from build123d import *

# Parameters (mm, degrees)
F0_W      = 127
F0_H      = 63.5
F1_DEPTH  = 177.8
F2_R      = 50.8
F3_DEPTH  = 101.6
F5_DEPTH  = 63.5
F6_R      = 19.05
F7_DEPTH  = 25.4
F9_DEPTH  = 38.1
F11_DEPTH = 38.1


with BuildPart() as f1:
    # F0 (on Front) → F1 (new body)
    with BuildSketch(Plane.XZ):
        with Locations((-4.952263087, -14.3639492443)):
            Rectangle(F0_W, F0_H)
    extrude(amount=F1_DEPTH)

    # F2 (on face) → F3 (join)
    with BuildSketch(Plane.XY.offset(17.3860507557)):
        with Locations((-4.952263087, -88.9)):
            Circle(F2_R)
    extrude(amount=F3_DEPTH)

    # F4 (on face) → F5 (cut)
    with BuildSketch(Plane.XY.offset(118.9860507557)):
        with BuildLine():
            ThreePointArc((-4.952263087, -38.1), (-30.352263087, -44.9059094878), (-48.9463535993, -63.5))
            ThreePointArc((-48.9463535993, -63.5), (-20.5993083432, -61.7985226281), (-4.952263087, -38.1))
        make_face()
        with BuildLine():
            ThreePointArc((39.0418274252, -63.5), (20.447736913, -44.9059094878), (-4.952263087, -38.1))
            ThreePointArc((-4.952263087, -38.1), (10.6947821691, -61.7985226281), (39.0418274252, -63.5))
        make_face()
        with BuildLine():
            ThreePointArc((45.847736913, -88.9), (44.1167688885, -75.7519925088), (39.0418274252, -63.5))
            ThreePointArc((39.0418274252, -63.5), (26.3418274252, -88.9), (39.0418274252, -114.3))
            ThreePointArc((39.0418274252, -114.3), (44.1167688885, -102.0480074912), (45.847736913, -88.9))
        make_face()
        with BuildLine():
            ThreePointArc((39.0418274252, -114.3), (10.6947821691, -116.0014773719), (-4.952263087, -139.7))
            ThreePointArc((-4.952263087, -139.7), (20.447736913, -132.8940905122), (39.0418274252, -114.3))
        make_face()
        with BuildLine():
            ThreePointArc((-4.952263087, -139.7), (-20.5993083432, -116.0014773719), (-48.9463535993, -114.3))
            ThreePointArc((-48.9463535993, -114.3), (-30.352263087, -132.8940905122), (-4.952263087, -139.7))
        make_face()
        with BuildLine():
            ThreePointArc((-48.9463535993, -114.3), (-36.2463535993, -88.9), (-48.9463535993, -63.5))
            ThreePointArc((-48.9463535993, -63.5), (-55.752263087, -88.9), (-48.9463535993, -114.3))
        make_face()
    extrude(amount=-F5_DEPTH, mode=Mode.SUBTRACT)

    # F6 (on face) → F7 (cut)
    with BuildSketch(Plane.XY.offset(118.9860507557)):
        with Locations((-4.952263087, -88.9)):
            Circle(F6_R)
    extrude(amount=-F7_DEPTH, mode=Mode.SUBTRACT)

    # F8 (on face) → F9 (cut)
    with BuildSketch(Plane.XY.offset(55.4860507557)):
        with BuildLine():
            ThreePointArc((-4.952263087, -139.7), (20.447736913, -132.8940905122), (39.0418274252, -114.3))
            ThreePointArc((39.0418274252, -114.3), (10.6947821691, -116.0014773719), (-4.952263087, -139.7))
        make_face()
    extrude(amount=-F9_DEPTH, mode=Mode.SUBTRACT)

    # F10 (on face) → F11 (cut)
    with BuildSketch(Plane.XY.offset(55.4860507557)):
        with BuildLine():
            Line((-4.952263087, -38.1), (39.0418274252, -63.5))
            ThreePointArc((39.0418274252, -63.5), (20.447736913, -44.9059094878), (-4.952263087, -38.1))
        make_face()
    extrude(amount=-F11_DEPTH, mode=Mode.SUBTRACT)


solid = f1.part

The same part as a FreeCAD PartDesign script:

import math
import FreeCAD as App
import Part
import Sketcher
from FreeCAD import Vector
Q = App.Units.Quantity


def add_polygon(sketch, points):
    """Adds a closed chain of lines whose ends are joined by coincident constraints."""
    first, n = sketch.GeometryCount, len(points)
    for a, b in zip(points, points[1:] + points[:1]):
        sketch.addGeometry(Part.LineSegment(App.Vector(*a, 0), App.Vector(*b, 0)), False)
    for i in range(n):
        sketch.addConstraint(Sketcher.Constraint("Coincident", first + i, 2, first + (i + 1) % n, 1))

doc = App.newDocument("Part")
body = doc.addObject("PartDesign::Body", "Body")

sketch1 = body.newObject("Sketcher::SketchObject", "Sketch")
sketch1.AttachmentSupport = (doc.getObject("XZ_Plane"), [""])
sketch1.MapMode = "FlatFace"
add_polygon(sketch1, [(-68, 17), (-68, -46), (59, -46), (59, 17)])
sketch1.addConstraint([
    Sketcher.Constraint("Vertical", 0),
    Sketcher.Constraint("Horizontal", 1),
    Sketcher.Constraint("Vertical", 2),
    Sketcher.Constraint("Horizontal", 3),
    Sketcher.Constraint("DistanceX", 1, 1, 1, 2, Q("5 in")),
    Sketcher.Constraint("DistanceY", 0, 2, 0, 1, Q("2.5 in")),
    Sketcher.Constraint("DistanceY", 0, 2, -1, 1, Q("46.113949 mm")),
    Sketcher.Constraint("DistanceX", 0, 2, -1, 1, Q("68.452263 mm")),
])
pad1 = body.newObject("PartDesign::Pad", "Pad")
pad1.Profile = sketch1
pad1.Length = Q("7 in")

sketch2 = body.newObject("Sketcher::SketchObject", "Sketch001")
sketch2.AttachmentSupport = (doc.getObject("XY_Plane"), [""])
sketch2.MapMode = "FlatFace"
sketch2.AttachmentOffset = App.Placement(Vector(0, 0, 17.386051), App.Rotation())
sketch2.addGeometry(Part.Circle(Vector(-5, -89, 0), Vector(0, 0, 1), 51), False)
sketch2.addConstraint([
    Sketcher.Constraint("Diameter", 0, Q("4 in")),
    Sketcher.Constraint("DistanceY", 0, 3, -1, 1, Q("3.5 in")),
    Sketcher.Constraint("DistanceX", 0, 3, -1, 1, Q("4.952263 mm")),
])
pad2 = body.newObject("PartDesign::Pad", "Pad001")
pad2.Profile = sketch2
pad2.Length = Q("4 in")

sketch3 = body.newObject("Sketcher::SketchObject", "Sketch002")
sketch3.AttachmentSupport = (doc.getObject("XY_Plane"), [""])
sketch3.MapMode = "FlatFace"
sketch3.AttachmentOffset = App.Placement(Vector(0, 0, 118.986051), App.Rotation())
sketch3.addGeometry([
    Part.ArcOfCircle(Part.Circle(Vector(-5, -89, 0), Vector(0, 0, 1), 51), math.radians(90), math.radians(150)),
    Part.ArcOfCircle(Part.Circle(Vector(-36, -34, 0), Vector(0, 0, 1), 32), math.radians(-113), math.radians(-7)),
    Part.ArcOfCircle(Part.Circle(Vector(-5, -89, 0), Vector(0, 0, 1), 51), math.radians(30), math.radians(90)),
    Part.ArcOfCircle(Part.Circle(Vector(27, -34, 0), Vector(0, 0, 1), 32), math.radians(-173), math.radians(-67)),
    Part.ArcOfCircle(Part.Circle(Vector(-5, -89, 0), Vector(0, 0, 1), 51), math.radians(0), math.radians(30)),
    Part.ArcOfCircle(Part.Circle(Vector(58, -89, 0), Vector(0, 0, 1), 32), math.radians(127), math.radians(233)),
    Part.ArcOfCircle(Part.Circle(Vector(-5, -89, 0), Vector(0, 0, 1), 51), math.radians(-30), math.radians(0)),
    Part.ArcOfCircle(Part.Circle(Vector(27, -143, 0), Vector(0, 0, 1), 32), math.radians(67), math.radians(173)),
    Part.ArcOfCircle(Part.Circle(Vector(-5, -89, 0), Vector(0, 0, 1), 51), math.radians(-90), math.radians(-30)),
    Part.ArcOfCircle(Part.Circle(Vector(-36, -143, 0), Vector(0, 0, 1), 32), math.radians(7), math.radians(113)),
    Part.ArcOfCircle(Part.Circle(Vector(-5, -89, 0), Vector(0, 0, 1), 51), math.radians(-150), math.radians(-90)),
    Part.ArcOfCircle(Part.Circle(Vector(-68, -89, 0), Vector(0, 0, 1), 32), math.radians(-53), math.radians(53)),
    Part.ArcOfCircle(Part.Circle(Vector(-5, -89, 0), Vector(0, 0, 1), 51), math.radians(150), math.radians(210)),
], False)
sketch3.addConstraint([
    Sketcher.Constraint("Coincident", 0, 1, 1, 2),
    Sketcher.Constraint("Coincident", 1, 1, 0, 2),
    Sketcher.Constraint("Coincident", 2, 1, 3, 2),
    Sketcher.Constraint("Coincident", 3, 1, 2, 2),
    Sketcher.Constraint("Coincident", 4, 2, 5, 1),
    Sketcher.Constraint("Coincident", 5, 2, 6, 1),
    Sketcher.Constraint("Tangent", 6, 2, 4, 1),
    Sketcher.Constraint("Coincident", 7, 1, 8, 2),
    Sketcher.Constraint("Coincident", 8, 1, 7, 2),
    Sketcher.Constraint("Coincident", 9, 1, 10, 2),
    Sketcher.Constraint("Coincident", 10, 1, 9, 2),
    Sketcher.Constraint("Coincident", 11, 1, 12, 2),
    Sketcher.Constraint("Coincident", 12, 1, 11, 2),
    Sketcher.Constraint("Coincident", 2, 3, 0, 3),
    Sketcher.Constraint("Coincident", 4, 3, 0, 3),
    Sketcher.Constraint("Coincident", 8, 3, 0, 3),
    Sketcher.Constraint("Coincident", 10, 3, 0, 3),
    Sketcher.Constraint("Coincident", 12, 3, 0, 3),
    Sketcher.Constraint("Coincident", 3, 1, 0, 1),
    Sketcher.Constraint("Coincident", 4, 2, 2, 1),
    Sketcher.Constraint("Coincident", 7, 1, 5, 2),
    Sketcher.Constraint("Coincident", 9, 1, 8, 1),
    Sketcher.Constraint("Coincident", 11, 1, 10, 1),
    Sketcher.Constraint("Coincident", 12, 1, 1, 1),
    Sketcher.Constraint("Equal", 1, 3),
    Sketcher.Constraint("Equal", 3, 5),
    Sketcher.Constraint("Equal", 5, 7),
    Sketcher.Constraint("Equal", 7, 9),
    Sketcher.Constraint("Equal", 9, 11),
    Sketcher.Constraint("Horizontal", 1, 3, 3, 3),
    Sketcher.Constraint("Horizontal", 4, 3, 5, 3),
    Sketcher.Constraint("Horizontal", 7, 3, 9, 3),
    Sketcher.Constraint("Horizontal", 10, 3, 11, 3),
    Sketcher.Constraint("Horizontal", 1, 1, 2, 1),
    Sketcher.Constraint("Horizontal", 12, 3, 6, 2),
    Sketcher.Constraint("Radius", 0, Q("2 in")),
    Sketcher.Constraint("Radius", 1, Q("1.25 in")),
    Sketcher.Constraint("DistanceY", 11, 3, 1, 1, Q("1 in")),
    Sketcher.Constraint("DistanceY", 0, 3, -1, 1, Q("3.5 in")),
    Sketcher.Constraint("DistanceX", 1, 3, -1, 1, Q("36.474308 mm")),
])
pocket1 = body.newObject("PartDesign::Pocket", "Pocket")
pocket1.Profile = sketch3
pocket1.Length = Q("2.5 in")

sketch4 = body.newObject("Sketcher::SketchObject", "Sketch003")
sketch4.AttachmentSupport = (doc.getObject("XY_Plane"), [""])
sketch4.MapMode = "FlatFace"
sketch4.AttachmentOffset = App.Placement(Vector(0, 0, 118.986051), App.Rotation())
sketch4.addGeometry(Part.Circle(Vector(-5, -89, 0), Vector(0, 0, 1), 19), False)
sketch4.addConstraint([
    Sketcher.Constraint("Diameter", 0, Q("1.5 in")),
    Sketcher.Constraint("DistanceY", 0, 3, -1, 1, Q("3.5 in")),
    Sketcher.Constraint("DistanceX", 0, 3, -1, 1, Q("4.952263 mm")),
])
pocket2 = body.newObject("PartDesign::Pocket", "Pocket001")
pocket2.Profile = sketch4
pocket2.Length = Q("1 in")

sketch5 = body.newObject("Sketcher::SketchObject", "Sketch004")
sketch5.AttachmentSupport = (doc.getObject("XY_Plane"), [""])
sketch5.MapMode = "FlatFace"
sketch5.AttachmentOffset = App.Placement(Vector(0, 0, 55.486051), App.Rotation())
sketch5.addGeometry([
    Part.ArcOfCircle(Part.Circle(Vector(-5, -89, 0), Vector(0, 0, 1), 51), math.radians(-90), math.radians(-30)),
    Part.ArcOfCircle(Part.Circle(Vector(27, -143, 0), Vector(0, 0, 1), 32), math.radians(67), math.radians(173)),
], False)
sketch5.addConstraint([
    Sketcher.Constraint("Coincident", 0, 1, 1, 2),
    Sketcher.Constraint("Coincident", 1, 1, 0, 2),
    Sketcher.Constraint("Radius", 0, Q("2 in")),
    Sketcher.Constraint("Radius", 1, Q("1.25 in")),
    Sketcher.Constraint("DistanceY", 1, 1, 0, 3, Q("1 in")),
    Sketcher.Constraint("DistanceY", 0, 3, -1, 1, Q("3.5 in")),
    Sketcher.Constraint("DistanceX", 0, 1, 1, 1, Q("43.994091 mm")),
    Sketcher.Constraint("DistanceX", 0, 3, -1, 1, Q("4.952263 mm")),
])
pocket3 = body.newObject("PartDesign::Pocket", "Pocket002")
pocket3.Profile = sketch5
pocket3.Length = Q("1.5 in")

sketch6 = body.newObject("Sketcher::SketchObject", "Sketch005")
sketch6.AttachmentSupport = (doc.getObject("XY_Plane"), [""])
sketch6.MapMode = "FlatFace"
sketch6.AttachmentOffset = App.Placement(Vector(0, 0, 55.486051), App.Rotation())
sketch6.addGeometry([
    Part.LineSegment(Vector(-5, -38, 0), Vector(39, -64, 0)),
    Part.ArcOfCircle(Part.Circle(Vector(-5, -89, 0), Vector(0, 0, 1), 51), math.radians(30), math.radians(90)),
], False)
sketch6.addConstraint([
    Sketcher.Constraint("Coincident", 0, 1, 1, 2),
    Sketcher.Constraint("Coincident", 1, 1, 0, 2),
    Sketcher.Constraint("Vertical", 1, 3, 0, 1),
    Sketcher.Constraint("Radius", 1, Q("2 in")),
    Sketcher.Constraint("Distance", 0, Q("2 in")),
    Sketcher.Constraint("DistanceY", 1, 3, -1, 1, Q("3.5 in")),
    Sketcher.Constraint("DistanceX", 1, 3, -1, 1, Q("4.952263 mm")),
])
pocket4 = body.newObject("PartDesign::Pocket", "Pocket003")
pocket4.Profile = sketch6
pocket4.Length = Q("1.5 in")

doc.recompute()
